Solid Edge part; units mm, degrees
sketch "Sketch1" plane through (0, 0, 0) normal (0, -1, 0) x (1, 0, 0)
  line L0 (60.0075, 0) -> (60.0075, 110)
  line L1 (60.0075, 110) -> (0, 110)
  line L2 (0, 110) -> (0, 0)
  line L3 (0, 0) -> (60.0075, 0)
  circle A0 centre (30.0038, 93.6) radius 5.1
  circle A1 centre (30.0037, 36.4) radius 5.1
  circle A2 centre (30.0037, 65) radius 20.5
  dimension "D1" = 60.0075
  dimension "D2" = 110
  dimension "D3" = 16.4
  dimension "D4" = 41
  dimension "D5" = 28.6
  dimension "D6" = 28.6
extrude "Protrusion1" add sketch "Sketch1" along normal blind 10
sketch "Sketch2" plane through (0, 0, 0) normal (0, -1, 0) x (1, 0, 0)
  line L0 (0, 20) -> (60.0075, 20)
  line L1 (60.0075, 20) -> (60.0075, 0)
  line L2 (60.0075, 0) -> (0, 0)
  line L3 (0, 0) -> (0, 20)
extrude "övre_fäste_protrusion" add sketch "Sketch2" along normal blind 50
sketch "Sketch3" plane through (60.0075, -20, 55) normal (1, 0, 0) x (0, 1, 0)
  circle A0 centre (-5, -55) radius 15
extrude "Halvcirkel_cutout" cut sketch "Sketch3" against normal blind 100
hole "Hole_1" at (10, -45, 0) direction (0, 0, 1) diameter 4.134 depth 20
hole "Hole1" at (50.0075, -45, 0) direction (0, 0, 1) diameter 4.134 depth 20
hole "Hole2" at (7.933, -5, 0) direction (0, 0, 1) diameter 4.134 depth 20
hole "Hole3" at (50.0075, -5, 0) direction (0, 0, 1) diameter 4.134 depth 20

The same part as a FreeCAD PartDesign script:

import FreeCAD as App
import Part
import Sketcher

V = App.Vector
Q = App.Units.Quantity


def add_polygon(sketch, points):
    """Adds a closed chain of lines whose ends are joined by coincident constraints."""
    first, n = sketch.GeometryCount, len(points)
    for a, b in zip(points, points[1:] + points[:1]):
        sketch.addGeometry(Part.LineSegment(App.Vector(*a, 0), App.Vector(*b, 0)), False)
    for i in range(n):
        sketch.addConstraint(Sketcher.Constraint("Coincident", first + i, 2, first + (i + 1) % n, 1))

doc = App.newDocument("Part")
body = doc.addObject("PartDesign::Body", "Body")

sketch1 = body.newObject("Sketcher::SketchObject", "Sketch")
sketch1.AttachmentSupport = (doc.getObject("XZ_Plane"), [""])
sketch1.MapMode = "FlatFace"
add_polygon(sketch1, [(0, 0), (60, 0), (60, 110), (0, 110)])
sketch1.addGeometry(Part.Circle(V(30, 36, 0), V(0, 0, 1), 5), False)
sketch1.addGeometry(Part.Circle(V(30, 65, 0), V(0, 0, 1), 20), False)
sketch1.addGeometry(Part.Circle(V(30, 94, 0), V(0, 0, 1), 5), False)
sketch1.addConstraint([
    Sketcher.Constraint("Horizontal", 0),
    Sketcher.Constraint("Vertical", 1),
    Sketcher.Constraint("Horizontal", 2),
    Sketcher.Constraint("Vertical", 3),
    Sketcher.Constraint("Coincident", 3, 2, -1, 1),
    Sketcher.Constraint("Equal", 4, 6),
    Sketcher.Constraint("Vertical", 4, 3, 5, 3),
    Sketcher.Constraint("Vertical", 5, 3, 6, 3),
    Sketcher.Constraint("Diameter", 5, Q("41 mm")),
    Sketcher.Constraint("Diameter", 4, Q("10.2 mm")),
    Sketcher.Constraint("DistanceY", 1, 1, 1, 2, Q("110 mm")),
    Sketcher.Constraint("DistanceY", -1, 1, 5, 3, Q("65 mm")),
    Sketcher.Constraint("DistanceY", -1, 1, 4, 3, Q("36.4 mm")),
    Sketcher.Constraint("DistanceY", -1, 1, 6, 3, Q("93.6 mm")),
    Sketcher.Constraint("DistanceX", 0, 1, 0, 2, Q("60.0075 mm")),
    Sketcher.Constraint("DistanceX", -1, 1, 4, 3, Q("30.0037 mm")),
])
pad1 = body.newObject("PartDesign::Pad", "Pad")
pad1.Profile = sketch1
pad1.Length = 10

sketch2 = body.newObject("Sketcher::SketchObject", "Sketch001")
sketch2.AttachmentSupport = (doc.getObject("XZ_Plane"), [""])
sketch2.MapMode = "FlatFace"
add_polygon(sketch2, [(60, 20), (0, 20), (0, 0), (60, 0)])
sketch2.addConstraint([
    Sketcher.Constraint("Horizontal", 0),
    Sketcher.Constraint("Vertical", 1),
    Sketcher.Constraint("Horizontal", 2),
    Sketcher.Constraint("Vertical", 3),
    Sketcher.Constraint("Coincident", 1, 2, -1, 1),
    Sketcher.Constraint("DistanceY", 1, 2, 1, 1, Q("20 mm")),
    Sketcher.Constraint("DistanceX", 0, 2, 0, 1, Q("60.0075 mm")),
])
pad2 = body.newObject("PartDesign::Pad", "Pad001")
pad2.Profile = sketch2
pad2.Length = 50

sketch3 = body.newObject("Sketcher::SketchObject", "Sketch002")
sketch3.AttachmentSupport = (doc.getObject("YZ_Plane"), [""])
sketch3.MapMode = "FlatFace"
sketch3.AttachmentOffset = App.Placement(V(0, 0, 60.0075), App.Rotation())
sketch3.addGeometry(Part.Circle(V(-25, 0, 0), V(0, 0, 1), 15), False)
sketch3.addConstraint([
    Sketcher.Constraint("PointOnObject", 0, 3, -1),
    Sketcher.Constraint("Diameter", 0, Q("30 mm")),
    Sketcher.Constraint("DistanceX", 0, 3, -1, 1, Q("25 mm")),
])
pocket1 = body.newObject("PartDesign::Pocket", "Pocket")
pocket1.Profile = sketch3
pocket1.Length = 100

sketch4 = body.newObject("Sketcher::SketchObject", "Sketch003")
sketch4.AttachmentSupport = (doc.getObject("XY_Plane"), [""])
sketch4.MapMode = "FlatFace"
sketch4.addGeometry(Part.Circle(V(10, -45, 0), V(0, 0, 1), 2.1), False)
sketch4.addConstraint([
    Sketcher.Constraint("Diameter", 0, Q("4.134 mm")),
    Sketcher.Constraint("DistanceX", -1, 1, 0, 3, Q("10 mm")),
    Sketcher.Constraint("DistanceY", 0, 3, -1, 1, Q("45 mm")),
])
doc.recompute()
hole = body.newObject("PartDesign::Hole", "Hole")
hole.Profile = sketch4
hole.ThreadType = "None"
hole.Diameter = 4.134
hole.DepthType = "Dimension"
hole.Depth = 20
hole.DrillPoint = "Flat"
hole.Reversed = True

sketch5 = body.newObject("Sketcher::SketchObject", "Sketch004")
sketch5.AttachmentSupport = (doc.getObject("XY_Plane"), [""])
sketch5.MapMode = "FlatFace"
sketch5.addGeometry(Part.Circle(V(50, -45, 0), V(0, 0, 1), 2.1), False)
sketch5.addConstraint([
    Sketcher.Constraint("Diameter", 0, Q("4.134 mm")),
    Sketcher.Constraint("DistanceY", 0, 3, -1, 1, Q("45 mm")),
    Sketcher.Constraint("DistanceX", -1, 1, 0, 3, Q("50.0075 mm")),
])
doc.recompute()
hole2 = body.newObject("PartDesign::Hole", "Hole001")
hole2.Profile = sketch5
hole2.ThreadType = "None"
hole2.Diameter = 4.134
hole2.DepthType = "Dimension"
hole2.Depth = 20
hole2.DrillPoint = "Flat"
hole2.Reversed = True

sketch6 = body.newObject("Sketcher::SketchObject", "Sketch005")
sketch6.AttachmentSupport = (doc.getObject("XY_Plane"), [""])
sketch6.MapMode = "FlatFace"
sketch6.addGeometry(Part.Circle(V(7.9, -5, 0), V(0, 0, 1), 2.1), False)
sketch6.addConstraint([
    Sketcher.Constraint("Diameter", 0, Q("4.134 mm")),
    Sketcher.Constraint("DistanceY", 0, 3, -1, 1, Q("5 mm")),
    Sketcher.Constraint("DistanceX", -1, 1, 0, 3, Q("7.933 mm")),
])
doc.recompute()
hole3 = body.newObject("PartDesign::Hole", "Hole002")
hole3.Profile = sketch6
hole3.ThreadType = "None"
hole3.Diameter = 4.134
hole3.DepthType = "Dimension"
hole3.Depth = 20
hole3.DrillPoint = "Flat"
hole3.Reversed = True

sketch7 = body.newObject("Sketcher::SketchObject", "Sketch006")
sketch7.AttachmentSupport = (doc.getObject("XY_Plane"), [""])
sketch7.MapMode = "FlatFace"
sketch7.addGeometry(Part.Circle(V(50, -5, 0), V(0, 0, 1), 2.1), False)
sketch7.addConstraint([
    Sketcher.Constraint("Diameter", 0, Q("4.134 mm")),
    Sketcher.Constraint("DistanceY", 0, 3, -1, 1, Q("5 mm")),
    Sketcher.Constraint("DistanceX", -1, 1, 0, 3, Q("50.0075 mm")),
])
doc.recompute()
hole4 = body.newObject("PartDesign::Hole", "Hole003")
hole4.Profile = sketch7
hole4.ThreadType = "None"
hole4.Diameter = 4.134
hole4.DepthType = "Dimension"
hole4.Depth = 20
hole4.DrillPoint = "Flat"
hole4.Reversed = True

doc.recompute()
